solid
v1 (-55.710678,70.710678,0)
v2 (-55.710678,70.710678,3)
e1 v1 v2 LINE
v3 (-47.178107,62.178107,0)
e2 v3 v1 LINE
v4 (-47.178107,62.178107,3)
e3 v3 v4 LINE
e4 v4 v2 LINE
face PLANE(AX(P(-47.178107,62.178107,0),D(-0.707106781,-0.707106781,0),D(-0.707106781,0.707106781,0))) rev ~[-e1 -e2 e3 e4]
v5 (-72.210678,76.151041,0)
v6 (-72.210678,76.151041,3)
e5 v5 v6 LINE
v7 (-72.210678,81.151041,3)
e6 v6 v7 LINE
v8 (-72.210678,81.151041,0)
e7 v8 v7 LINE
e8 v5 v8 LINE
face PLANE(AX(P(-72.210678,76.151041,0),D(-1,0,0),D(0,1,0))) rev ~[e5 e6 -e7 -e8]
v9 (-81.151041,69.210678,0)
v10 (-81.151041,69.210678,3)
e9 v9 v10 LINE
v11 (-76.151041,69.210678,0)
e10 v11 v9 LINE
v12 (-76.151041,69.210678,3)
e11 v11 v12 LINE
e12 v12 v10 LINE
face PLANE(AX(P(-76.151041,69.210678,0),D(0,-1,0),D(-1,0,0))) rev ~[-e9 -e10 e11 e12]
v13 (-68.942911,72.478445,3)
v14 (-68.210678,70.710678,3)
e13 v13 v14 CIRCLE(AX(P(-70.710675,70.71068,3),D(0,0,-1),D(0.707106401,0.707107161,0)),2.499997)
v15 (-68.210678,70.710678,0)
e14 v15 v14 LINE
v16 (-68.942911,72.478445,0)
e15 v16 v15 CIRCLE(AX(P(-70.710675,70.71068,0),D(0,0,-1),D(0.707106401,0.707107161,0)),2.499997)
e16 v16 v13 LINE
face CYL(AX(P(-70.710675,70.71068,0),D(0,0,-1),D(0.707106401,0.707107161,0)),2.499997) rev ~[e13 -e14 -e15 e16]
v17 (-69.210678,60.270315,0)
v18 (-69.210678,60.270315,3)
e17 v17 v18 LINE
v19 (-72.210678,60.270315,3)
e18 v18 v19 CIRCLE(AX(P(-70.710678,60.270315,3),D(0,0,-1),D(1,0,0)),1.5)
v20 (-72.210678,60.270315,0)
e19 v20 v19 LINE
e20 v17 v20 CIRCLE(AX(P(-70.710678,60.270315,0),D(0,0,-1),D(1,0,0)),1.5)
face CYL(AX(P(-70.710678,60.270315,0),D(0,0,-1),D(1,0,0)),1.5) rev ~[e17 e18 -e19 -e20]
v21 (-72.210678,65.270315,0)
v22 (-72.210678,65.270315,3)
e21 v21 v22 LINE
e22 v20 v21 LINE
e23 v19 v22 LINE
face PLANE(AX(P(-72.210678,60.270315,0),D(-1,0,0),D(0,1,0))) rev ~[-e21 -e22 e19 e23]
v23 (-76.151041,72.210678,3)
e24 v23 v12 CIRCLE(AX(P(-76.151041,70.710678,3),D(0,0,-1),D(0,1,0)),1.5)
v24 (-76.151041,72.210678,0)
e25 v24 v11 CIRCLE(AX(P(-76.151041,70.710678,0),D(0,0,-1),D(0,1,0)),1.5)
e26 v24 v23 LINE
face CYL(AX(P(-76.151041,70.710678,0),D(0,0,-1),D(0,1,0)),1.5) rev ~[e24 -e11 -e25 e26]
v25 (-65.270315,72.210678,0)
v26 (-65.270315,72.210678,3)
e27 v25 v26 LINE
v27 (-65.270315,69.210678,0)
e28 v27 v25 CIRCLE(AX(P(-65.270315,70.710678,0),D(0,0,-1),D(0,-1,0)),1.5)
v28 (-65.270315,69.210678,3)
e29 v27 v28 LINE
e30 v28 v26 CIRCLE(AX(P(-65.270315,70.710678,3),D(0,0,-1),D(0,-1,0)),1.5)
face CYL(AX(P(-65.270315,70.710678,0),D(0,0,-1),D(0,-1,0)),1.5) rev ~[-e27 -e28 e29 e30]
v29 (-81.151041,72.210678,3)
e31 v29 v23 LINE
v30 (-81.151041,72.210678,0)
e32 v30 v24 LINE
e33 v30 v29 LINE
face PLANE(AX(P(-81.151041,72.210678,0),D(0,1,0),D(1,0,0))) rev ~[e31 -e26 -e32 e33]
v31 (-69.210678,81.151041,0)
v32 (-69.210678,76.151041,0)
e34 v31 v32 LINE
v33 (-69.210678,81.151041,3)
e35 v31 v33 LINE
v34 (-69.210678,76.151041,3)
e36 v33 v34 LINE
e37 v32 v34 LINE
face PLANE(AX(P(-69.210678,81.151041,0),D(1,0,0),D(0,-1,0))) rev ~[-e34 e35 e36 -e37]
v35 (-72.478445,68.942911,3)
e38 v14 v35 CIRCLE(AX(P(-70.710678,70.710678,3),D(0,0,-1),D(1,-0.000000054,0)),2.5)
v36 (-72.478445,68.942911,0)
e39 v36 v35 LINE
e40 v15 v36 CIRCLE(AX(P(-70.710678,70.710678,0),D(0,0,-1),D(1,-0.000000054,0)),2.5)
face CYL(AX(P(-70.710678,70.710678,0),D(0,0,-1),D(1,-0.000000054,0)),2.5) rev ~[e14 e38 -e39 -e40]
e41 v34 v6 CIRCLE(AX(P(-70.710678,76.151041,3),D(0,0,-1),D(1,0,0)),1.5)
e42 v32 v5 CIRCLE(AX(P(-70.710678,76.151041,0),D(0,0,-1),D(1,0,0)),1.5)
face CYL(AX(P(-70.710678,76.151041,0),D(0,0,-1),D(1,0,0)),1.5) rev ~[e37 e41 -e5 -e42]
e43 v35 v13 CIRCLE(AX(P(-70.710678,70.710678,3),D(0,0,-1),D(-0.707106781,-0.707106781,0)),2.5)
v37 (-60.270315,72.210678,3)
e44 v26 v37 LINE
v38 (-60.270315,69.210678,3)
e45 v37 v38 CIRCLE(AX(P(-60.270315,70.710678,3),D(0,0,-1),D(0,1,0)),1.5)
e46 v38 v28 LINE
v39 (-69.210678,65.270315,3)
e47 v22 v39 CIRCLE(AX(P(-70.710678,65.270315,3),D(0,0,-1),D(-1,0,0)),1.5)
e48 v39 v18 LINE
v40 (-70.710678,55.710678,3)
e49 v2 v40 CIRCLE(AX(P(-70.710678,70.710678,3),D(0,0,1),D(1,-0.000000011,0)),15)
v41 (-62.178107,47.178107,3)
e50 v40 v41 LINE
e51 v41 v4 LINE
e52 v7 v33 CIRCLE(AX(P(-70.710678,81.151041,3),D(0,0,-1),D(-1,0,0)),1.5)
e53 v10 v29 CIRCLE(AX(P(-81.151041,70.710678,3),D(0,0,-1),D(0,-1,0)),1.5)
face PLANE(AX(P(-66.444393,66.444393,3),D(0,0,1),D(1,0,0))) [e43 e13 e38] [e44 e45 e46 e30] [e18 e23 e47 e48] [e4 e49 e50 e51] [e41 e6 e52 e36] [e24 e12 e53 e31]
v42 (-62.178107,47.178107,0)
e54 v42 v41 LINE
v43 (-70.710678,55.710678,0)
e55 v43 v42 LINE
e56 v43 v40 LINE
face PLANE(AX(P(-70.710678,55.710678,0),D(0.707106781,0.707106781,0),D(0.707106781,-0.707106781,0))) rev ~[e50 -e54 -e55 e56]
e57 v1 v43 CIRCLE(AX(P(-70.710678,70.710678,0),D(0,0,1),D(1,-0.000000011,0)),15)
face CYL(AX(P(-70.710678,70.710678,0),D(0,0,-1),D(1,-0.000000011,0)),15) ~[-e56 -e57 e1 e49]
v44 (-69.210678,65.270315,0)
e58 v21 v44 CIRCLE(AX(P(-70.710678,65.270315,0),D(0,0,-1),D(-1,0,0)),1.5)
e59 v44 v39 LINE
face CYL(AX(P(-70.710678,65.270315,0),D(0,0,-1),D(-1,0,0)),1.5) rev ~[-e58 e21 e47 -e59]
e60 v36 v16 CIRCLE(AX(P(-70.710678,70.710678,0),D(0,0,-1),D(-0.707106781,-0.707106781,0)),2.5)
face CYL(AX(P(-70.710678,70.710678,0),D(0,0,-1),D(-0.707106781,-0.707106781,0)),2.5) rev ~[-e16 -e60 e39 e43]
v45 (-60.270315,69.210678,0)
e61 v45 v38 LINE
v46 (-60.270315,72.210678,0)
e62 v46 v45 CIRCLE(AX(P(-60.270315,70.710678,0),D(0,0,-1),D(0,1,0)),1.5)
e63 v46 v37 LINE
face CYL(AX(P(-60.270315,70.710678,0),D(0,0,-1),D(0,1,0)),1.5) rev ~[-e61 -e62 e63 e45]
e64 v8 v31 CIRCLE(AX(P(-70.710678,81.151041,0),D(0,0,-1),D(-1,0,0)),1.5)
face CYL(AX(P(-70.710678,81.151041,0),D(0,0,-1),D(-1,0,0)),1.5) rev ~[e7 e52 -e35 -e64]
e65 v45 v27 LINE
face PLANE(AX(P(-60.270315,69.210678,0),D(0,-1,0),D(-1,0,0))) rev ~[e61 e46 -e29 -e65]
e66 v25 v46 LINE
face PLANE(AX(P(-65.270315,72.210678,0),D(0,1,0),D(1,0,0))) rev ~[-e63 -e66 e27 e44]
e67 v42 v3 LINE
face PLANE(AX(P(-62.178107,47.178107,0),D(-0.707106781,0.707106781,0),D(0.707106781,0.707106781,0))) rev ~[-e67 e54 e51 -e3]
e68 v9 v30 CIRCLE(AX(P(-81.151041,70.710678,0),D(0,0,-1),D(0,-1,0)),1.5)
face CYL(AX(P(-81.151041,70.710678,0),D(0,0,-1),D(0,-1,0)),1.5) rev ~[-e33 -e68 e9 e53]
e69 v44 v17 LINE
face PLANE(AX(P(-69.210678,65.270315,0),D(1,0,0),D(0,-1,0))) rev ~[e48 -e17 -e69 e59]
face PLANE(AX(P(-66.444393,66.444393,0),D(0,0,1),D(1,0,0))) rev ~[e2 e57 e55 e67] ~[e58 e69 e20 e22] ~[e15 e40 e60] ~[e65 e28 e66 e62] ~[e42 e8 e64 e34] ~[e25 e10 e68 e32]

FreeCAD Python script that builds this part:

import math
import FreeCAD as App
import Part
import Sketcher
from FreeCAD import Vector
Q = App.Units.Quantity

doc = App.newDocument("Part")
body = doc.addObject("PartDesign::Body", "Body")

sketch1 = body.newObject("Sketcher::SketchObject", "Sketch")
sketch1.AttachmentSupport = (doc.getObject("XY_Plane"), [""])
sketch1.MapMode = "FlatFace"
sketch1.addGeometry([
    Part.LineSegment(Vector(-47.178107, 62.178107, 0), Vector(-55.710678, 70.710678, 0)),
    Part.ArcOfCircle(Part.Circle(Vector(-70.710678, 70.710678, 0), Vector(0, 0, 1), 15), math.radians(-0.000001), math.radians(270.000001)),
    Part.LineSegment(Vector(-70.710678, 55.710678, 0), Vector(-62.178107, 47.178107, 0)),
    Part.LineSegment(Vector(-62.178107, 47.178107, 0), Vector(-47.178107, 62.178107, 0)),
    Part.LineSegment(Vector(-72.210678, 60.270315, 0), Vector(-72.210678, 65.270315, 0)),
    Part.ArcOfCircle(Part.Circle(Vector(-70.710678, 65.270315, 0), Vector(0, 0, 1), 1.5), math.radians(0), math.radians(180)),
    Part.LineSegment(Vector(-69.210678, 65.270315, 0), Vector(-69.210678, 60.270315, 0)),
    Part.ArcOfCircle(Part.Circle(Vector(-70.710678, 60.270315, 0), Vector(0, 0, 1), 1.5), math.radians(180), math.radians(360)),
    Part.LineSegment(Vector(-81.151041, 72.210678, 0), Vector(-76.151041, 72.210678, 0)),
    Part.ArcOfCircle(Part.Circle(Vector(-76.151041, 70.710678, 0), Vector(0, 0, 1), 1.5), math.radians(-90), math.radians(90)),
    Part.LineSegment(Vector(-76.151041, 69.210678, 0), Vector(-81.151041, 69.210678, 0)),
    Part.ArcOfCircle(Part.Circle(Vector(-81.151041, 70.710678, 0), Vector(0, 0, 1), 1.5), math.radians(90), math.radians(270)),
    Part.ArcOfCircle(Part.Circle(Vector(-70.710678, 70.710678, 0), Vector(0, 0, 1), 2.5), math.radians(45), math.radians(225)),
    Part.ArcOfCircle(Part.Circle(Vector(-70.710675, 70.71068, 0), Vector(0, 0, 1), 2.499997), math.radians(-0.000034), math.radians(45.000031)),
    Part.ArcOfCircle(Part.Circle(Vector(-70.710678, 70.710678, 0), Vector(0, 0, 1), 2.5), math.radians(-134.999996), math.radians(-0.000003)),
    Part.ArcOfCircle(Part.Circle(Vector(-60.270315, 70.710678, 0), Vector(0, 0, 1), 1.5), math.radians(-90), math.radians(90)),
    Part.LineSegment(Vector(-60.270315, 69.210678, 0), Vector(-65.270315, 69.210678, 0)),
    Part.ArcOfCircle(Part.Circle(Vector(-65.270315, 70.710678, 0), Vector(0, 0, 1), 1.5), math.radians(90), math.radians(270)),
    Part.LineSegment(Vector(-65.270315, 72.210678, 0), Vector(-60.270315, 72.210678, 0)),
    Part.ArcOfCircle(Part.Circle(Vector(-70.710678, 81.151041, 0), Vector(0, 0, 1), 1.5), math.radians(0), math.radians(180)),
    Part.LineSegment(Vector(-69.210678, 81.151041, 0), Vector(-69.210678, 76.151041, 0)),
    Part.ArcOfCircle(Part.Circle(Vector(-70.710678, 76.151041, 0), Vector(0, 0, 1), 1.5), math.radians(180), math.radians(360)),
    Part.LineSegment(Vector(-72.210678, 76.151041, 0), Vector(-72.210678, 81.151041, 0)),
], False)
sketch1.addConstraint([
    Sketcher.Constraint("Coincident", 0, 2, 1, 1),
    Sketcher.Constraint("Coincident", 1, 2, 2, 1),
    Sketcher.Constraint("Coincident", 2, 2, 3, 1),
    Sketcher.Constraint("Coincident", 3, 2, 0, 1),
    Sketcher.Constraint("Tangent", 4, 2, 5, 2),
    Sketcher.Constraint("Tangent", 5, 1, 6, 1),
    Sketcher.Constraint("Tangent", 6, 2, 7, 2),
    Sketcher.Constraint("Tangent", 7, 1, 4, 1),
    Sketcher.Constraint("Tangent", 8, 2, 9, 2),
    Sketcher.Constraint("Tangent", 9, 1, 10, 1),
    Sketcher.Constraint("Tangent", 10, 2, 11, 2),
    Sketcher.Constraint("Tangent", 11, 1, 8, 1),
    Sketcher.Constraint("Tangent", 12, 1, 13, 2),
    Sketcher.Constraint("Tangent", 13, 1, 14, 2),
    Sketcher.Constraint("Tangent", 14, 1, 12, 2),
    Sketcher.Constraint("Tangent", 15, 1, 16, 1),
    Sketcher.Constraint("Tangent", 16, 2, 17, 2),
    Sketcher.Constraint("Tangent", 17, 1, 18, 1),
    Sketcher.Constraint("Tangent", 18, 2, 15, 2),
    Sketcher.Constraint("Tangent", 19, 1, 20, 1),
    Sketcher.Constraint("Tangent", 20, 2, 21, 2),
    Sketcher.Constraint("Tangent", 21, 1, 22, 1),
    Sketcher.Constraint("Tangent", 22, 2, 19, 2),
    Sketcher.Constraint("Vertical", 4),
    Sketcher.Constraint("Vertical", 6),
    Sketcher.Constraint("Horizontal", 8),
    Sketcher.Constraint("Horizontal", 10),
    Sketcher.Constraint("Horizontal", 16),
    Sketcher.Constraint("Horizontal", 18),
    Sketcher.Constraint("Vertical", 20),
    Sketcher.Constraint("Vertical", 22),
    Sketcher.Constraint("Coincident", 12, 3, 1, 3),
    Sketcher.Constraint("Equal", 7, 9),
    Sketcher.Constraint("Equal", 11, 15),
    Sketcher.Constraint("Equal", 17, 19),
    Sketcher.Constraint("Parallel", 0, 2),
    Sketcher.Constraint("Perpendicular", 2, 3),
    Sketcher.Constraint("Horizontal", 1, 3, 9, 3),
    Sketcher.Constraint("Horizontal", 14, 3, 15, 3),
    Sketcher.Constraint("Horizontal", 17, 3, 0, 2),
    Sketcher.Constraint("Horizontal", 0, 2, 13, 1),
    Sketcher.Constraint("Vertical", 1, 3, 5, 3),
    Sketcher.Constraint("Vertical", 14, 3, 19, 3),
    Sketcher.Constraint("Vertical", 21, 3, 1, 2),
    Sketcher.Constraint("Equal", 10, 16),
    Sketcher.Constraint("Equal", 18, 4),
    Sketcher.Constraint("Equal", 6, 20),
    Sketcher.Constraint("Equal", 0, 2),
    Sketcher.Constraint("Radius", 1, Q("15 mm")),
    Sketcher.Constraint("Radius", 5, Q("1.5 mm")),
    Sketcher.Constraint("Radius", 12, Q("2.5 mm")),
    Sketcher.Constraint("DistanceX", 8, 1, 8, 2, Q("5 mm")),
    Sketcher.Constraint("DistanceX", 1, 3, -1, 1, Q("70.710678 mm")),
    Sketcher.Constraint("DistanceY", -1, 1, 1, 3, Q("70.710678 mm")),
    Sketcher.Constraint("DistanceX", 9, 3, -1, 1, Q("76.151041 mm")),
    Sketcher.Constraint("DistanceY", -1, 1, 19, 3, Q("81.151041 mm")),
    Sketcher.Constraint("DistanceX", 12, 1, -1, 1, Q("68.942911 mm")),
    Sketcher.Constraint("DistanceY", -1, 1, 14, 1, Q("68.942911 mm")),
    Sketcher.Constraint("DistanceX", 13, 3, 15, 3, Q("10.44036 mm")),
    Sketcher.Constraint("DistanceX", 1, 2, 2, 2, Q("8.532571 mm")),
    Sketcher.Constraint("DistanceY", -1, 1, 5, 3, Q("65.270315 mm")),
])
pad1 = body.newObject("PartDesign::Pad", "Pad")
pad1.Profile = sketch1
pad1.Length = 3

doc.recompute()
